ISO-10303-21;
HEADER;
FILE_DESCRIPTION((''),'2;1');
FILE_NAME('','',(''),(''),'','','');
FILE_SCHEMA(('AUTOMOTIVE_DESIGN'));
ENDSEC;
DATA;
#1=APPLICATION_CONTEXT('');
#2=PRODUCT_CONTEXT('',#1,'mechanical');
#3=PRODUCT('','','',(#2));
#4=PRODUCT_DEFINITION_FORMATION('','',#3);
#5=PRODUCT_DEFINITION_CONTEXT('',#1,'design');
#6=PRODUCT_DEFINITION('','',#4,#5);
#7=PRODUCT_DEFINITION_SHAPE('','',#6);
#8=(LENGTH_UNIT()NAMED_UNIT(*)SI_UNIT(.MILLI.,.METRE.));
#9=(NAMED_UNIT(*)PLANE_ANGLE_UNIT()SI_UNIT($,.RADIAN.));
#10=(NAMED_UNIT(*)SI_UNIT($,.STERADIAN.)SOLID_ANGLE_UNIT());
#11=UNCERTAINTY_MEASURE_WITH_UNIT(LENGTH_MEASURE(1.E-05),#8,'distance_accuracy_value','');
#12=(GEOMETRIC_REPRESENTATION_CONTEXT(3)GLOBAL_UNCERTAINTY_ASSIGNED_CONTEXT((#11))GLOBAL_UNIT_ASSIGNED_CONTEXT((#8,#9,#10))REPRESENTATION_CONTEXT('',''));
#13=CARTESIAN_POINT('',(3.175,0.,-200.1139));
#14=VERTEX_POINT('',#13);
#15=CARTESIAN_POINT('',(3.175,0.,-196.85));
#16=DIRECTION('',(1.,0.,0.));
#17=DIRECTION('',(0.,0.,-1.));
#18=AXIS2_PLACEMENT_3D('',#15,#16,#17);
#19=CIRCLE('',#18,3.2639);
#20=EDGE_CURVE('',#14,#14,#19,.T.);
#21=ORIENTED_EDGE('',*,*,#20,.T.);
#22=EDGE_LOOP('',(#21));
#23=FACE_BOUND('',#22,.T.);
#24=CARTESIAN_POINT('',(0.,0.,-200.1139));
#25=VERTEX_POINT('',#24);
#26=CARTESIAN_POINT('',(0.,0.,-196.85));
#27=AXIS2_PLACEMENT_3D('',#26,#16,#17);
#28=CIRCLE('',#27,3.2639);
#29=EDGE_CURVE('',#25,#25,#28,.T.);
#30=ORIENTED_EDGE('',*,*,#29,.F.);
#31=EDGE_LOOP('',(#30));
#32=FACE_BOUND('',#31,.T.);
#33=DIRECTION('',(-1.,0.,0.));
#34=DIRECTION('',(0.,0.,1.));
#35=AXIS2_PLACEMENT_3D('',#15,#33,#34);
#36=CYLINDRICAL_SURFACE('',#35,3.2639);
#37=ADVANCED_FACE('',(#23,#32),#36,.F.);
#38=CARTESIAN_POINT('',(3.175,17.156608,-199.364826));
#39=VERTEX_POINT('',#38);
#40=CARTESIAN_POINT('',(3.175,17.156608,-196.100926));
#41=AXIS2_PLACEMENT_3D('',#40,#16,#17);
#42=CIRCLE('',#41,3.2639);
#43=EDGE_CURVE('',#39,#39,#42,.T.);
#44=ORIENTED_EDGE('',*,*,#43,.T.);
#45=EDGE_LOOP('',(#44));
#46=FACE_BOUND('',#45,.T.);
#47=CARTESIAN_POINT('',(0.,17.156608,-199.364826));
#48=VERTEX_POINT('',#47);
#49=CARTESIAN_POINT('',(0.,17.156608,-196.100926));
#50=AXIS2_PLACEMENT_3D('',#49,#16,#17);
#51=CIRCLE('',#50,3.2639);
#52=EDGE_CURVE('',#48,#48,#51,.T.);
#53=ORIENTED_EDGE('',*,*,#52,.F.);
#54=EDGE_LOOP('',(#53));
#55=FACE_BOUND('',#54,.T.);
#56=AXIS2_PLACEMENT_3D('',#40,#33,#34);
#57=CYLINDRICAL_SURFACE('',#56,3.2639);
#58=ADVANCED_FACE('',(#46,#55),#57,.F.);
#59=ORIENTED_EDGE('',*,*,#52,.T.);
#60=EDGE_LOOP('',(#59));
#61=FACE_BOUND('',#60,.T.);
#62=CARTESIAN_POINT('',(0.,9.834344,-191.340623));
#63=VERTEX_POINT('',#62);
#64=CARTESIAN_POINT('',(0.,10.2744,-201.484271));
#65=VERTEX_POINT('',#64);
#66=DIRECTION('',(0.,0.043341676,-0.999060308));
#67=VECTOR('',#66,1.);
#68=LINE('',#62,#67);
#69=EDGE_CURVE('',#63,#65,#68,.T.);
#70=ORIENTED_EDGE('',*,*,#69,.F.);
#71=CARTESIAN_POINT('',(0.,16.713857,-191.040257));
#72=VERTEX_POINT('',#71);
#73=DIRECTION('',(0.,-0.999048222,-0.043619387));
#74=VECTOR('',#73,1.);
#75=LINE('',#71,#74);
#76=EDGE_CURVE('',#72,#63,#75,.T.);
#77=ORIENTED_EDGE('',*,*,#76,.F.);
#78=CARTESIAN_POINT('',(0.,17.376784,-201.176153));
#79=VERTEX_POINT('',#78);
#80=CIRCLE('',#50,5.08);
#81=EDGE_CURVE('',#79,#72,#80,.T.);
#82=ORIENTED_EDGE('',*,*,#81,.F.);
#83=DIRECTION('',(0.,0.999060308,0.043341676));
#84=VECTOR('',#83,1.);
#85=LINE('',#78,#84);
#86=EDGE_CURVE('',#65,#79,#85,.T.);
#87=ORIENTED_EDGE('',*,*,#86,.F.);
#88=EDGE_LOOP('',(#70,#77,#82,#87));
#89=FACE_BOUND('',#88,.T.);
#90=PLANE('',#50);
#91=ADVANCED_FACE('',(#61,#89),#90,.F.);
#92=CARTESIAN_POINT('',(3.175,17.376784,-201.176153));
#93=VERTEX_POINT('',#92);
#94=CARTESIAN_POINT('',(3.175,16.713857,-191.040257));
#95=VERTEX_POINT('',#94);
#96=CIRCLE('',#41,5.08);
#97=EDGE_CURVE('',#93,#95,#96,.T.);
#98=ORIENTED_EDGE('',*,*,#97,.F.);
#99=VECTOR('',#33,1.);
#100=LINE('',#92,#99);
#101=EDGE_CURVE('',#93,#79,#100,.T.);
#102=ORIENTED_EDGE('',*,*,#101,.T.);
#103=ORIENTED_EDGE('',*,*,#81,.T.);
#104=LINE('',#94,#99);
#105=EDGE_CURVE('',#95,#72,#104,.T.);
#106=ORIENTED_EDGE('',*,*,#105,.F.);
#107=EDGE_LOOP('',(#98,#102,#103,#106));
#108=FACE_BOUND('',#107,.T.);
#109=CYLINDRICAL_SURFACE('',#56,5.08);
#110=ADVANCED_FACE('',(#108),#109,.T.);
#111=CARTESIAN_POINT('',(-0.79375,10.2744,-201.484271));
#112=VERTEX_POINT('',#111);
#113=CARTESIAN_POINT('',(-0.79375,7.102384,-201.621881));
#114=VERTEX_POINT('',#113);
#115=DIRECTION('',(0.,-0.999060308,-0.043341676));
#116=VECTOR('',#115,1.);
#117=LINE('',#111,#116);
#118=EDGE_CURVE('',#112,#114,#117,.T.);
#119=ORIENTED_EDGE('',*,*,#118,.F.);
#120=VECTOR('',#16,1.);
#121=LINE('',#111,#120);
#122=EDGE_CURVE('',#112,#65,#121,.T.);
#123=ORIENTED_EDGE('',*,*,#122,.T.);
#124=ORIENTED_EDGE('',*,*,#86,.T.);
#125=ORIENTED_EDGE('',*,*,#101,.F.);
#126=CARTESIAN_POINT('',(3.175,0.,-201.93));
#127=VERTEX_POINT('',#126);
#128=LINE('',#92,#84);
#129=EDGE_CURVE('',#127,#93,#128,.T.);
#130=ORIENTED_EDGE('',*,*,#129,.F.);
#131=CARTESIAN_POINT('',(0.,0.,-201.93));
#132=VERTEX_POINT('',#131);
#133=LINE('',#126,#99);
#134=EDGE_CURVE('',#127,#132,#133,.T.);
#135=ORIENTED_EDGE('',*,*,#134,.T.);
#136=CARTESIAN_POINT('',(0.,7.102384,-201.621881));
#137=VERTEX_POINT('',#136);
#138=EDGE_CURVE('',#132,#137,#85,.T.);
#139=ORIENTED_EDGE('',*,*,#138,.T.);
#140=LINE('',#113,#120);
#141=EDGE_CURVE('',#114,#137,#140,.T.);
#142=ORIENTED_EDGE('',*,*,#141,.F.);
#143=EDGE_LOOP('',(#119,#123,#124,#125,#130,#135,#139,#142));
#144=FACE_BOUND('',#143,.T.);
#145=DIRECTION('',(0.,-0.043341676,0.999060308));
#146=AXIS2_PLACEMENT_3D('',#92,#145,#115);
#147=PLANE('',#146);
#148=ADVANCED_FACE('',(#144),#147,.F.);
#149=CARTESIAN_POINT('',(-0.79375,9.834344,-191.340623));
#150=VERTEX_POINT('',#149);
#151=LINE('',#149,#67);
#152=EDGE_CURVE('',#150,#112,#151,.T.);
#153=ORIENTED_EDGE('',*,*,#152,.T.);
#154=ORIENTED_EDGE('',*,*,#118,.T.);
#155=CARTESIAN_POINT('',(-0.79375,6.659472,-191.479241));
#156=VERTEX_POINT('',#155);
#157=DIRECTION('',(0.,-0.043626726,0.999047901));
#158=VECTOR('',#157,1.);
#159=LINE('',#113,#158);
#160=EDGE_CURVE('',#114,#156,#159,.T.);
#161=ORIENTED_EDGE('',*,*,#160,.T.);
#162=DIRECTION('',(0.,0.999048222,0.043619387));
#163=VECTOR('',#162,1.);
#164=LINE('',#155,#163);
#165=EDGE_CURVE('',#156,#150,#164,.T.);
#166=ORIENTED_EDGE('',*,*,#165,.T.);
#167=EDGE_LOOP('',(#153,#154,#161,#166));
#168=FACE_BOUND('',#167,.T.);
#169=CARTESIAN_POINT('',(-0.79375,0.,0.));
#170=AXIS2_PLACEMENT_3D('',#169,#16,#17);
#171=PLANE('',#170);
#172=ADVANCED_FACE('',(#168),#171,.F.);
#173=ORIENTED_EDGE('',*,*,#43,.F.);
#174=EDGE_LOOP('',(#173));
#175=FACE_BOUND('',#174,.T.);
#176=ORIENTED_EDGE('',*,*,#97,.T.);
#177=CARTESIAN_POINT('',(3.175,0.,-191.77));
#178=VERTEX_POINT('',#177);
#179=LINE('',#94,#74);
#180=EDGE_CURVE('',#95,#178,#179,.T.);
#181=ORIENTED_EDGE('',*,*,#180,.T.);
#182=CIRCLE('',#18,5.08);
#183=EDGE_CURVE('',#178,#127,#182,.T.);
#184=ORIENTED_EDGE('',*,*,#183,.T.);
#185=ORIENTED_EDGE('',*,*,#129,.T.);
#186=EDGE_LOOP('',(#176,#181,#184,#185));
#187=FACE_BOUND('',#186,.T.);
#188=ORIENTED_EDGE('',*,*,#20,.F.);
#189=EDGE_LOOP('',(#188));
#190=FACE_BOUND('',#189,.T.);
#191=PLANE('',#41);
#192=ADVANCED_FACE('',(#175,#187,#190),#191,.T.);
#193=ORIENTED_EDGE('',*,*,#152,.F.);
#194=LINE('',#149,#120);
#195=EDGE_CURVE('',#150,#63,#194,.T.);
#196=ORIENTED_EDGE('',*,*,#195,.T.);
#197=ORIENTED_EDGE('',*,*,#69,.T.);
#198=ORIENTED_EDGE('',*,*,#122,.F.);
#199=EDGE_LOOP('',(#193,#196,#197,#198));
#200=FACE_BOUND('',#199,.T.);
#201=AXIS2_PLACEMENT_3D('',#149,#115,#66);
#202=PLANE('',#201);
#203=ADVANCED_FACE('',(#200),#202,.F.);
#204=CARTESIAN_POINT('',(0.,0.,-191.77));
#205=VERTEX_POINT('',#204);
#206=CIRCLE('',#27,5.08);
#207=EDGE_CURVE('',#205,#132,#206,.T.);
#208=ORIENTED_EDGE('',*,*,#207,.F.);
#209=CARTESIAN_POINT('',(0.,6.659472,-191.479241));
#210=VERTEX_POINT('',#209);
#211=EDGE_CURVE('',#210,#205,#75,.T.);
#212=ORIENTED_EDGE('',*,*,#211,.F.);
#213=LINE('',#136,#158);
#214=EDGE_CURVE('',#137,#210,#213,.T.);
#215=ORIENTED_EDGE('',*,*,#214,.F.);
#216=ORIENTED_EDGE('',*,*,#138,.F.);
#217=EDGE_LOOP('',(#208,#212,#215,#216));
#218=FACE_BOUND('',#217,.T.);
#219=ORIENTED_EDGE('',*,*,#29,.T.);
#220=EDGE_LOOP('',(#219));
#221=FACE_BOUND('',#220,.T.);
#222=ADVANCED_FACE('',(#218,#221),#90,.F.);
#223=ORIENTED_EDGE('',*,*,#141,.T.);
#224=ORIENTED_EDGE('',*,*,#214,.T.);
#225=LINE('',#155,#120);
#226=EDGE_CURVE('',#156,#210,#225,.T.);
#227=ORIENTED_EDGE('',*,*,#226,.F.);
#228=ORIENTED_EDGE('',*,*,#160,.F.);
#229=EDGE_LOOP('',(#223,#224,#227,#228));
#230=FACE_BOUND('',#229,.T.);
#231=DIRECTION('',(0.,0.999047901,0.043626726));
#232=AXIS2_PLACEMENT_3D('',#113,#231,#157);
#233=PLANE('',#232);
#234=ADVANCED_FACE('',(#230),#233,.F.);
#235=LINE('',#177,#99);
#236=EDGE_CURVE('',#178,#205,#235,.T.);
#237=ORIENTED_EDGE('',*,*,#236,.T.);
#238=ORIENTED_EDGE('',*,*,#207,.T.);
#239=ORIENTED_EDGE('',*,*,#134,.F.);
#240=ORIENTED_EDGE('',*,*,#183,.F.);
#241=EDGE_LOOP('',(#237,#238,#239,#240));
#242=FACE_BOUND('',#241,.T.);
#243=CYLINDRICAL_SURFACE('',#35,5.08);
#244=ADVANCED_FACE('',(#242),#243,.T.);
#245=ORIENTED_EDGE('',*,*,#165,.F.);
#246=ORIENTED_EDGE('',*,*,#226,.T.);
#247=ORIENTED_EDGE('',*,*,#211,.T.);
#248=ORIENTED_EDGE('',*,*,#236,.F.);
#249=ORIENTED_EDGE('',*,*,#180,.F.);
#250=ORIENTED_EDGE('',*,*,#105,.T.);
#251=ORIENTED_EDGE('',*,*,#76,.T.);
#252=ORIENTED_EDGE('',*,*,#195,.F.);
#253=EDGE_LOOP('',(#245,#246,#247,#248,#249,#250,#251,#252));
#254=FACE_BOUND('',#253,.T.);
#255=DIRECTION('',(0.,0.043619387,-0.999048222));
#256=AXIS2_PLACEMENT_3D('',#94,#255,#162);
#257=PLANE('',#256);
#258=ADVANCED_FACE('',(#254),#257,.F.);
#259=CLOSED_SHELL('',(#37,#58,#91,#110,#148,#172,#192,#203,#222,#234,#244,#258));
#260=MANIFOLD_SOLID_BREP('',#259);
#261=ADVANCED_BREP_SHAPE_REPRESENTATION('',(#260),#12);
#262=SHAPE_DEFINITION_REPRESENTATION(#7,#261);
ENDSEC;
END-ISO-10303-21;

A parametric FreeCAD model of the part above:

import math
import FreeCAD as App
import Part
import Sketcher
from FreeCAD import Vector
Q = App.Units.Quantity

doc = App.newDocument("Part")
params = doc.addObject("Spreadsheet::Sheet", "Params")
for row, (alias, value) in enumerate([
    ("sketch1_radius", "0.2 in"),
    ("sketch1_diameter", "0.257 in"),
    ("pad1_length", "0.125 in"),
    ("sketch2_length", "0.0625 in"),
    ("pad2_length", "0.03125 in"),
], start=1):
    params.set(f"A{row}", alias)
    params.set(f"B{row}", "=" + value)
    params.setAlias(f"B{row}", alias)

body = doc.addObject("PartDesign::Body", "Body")

sketch1 = body.newObject("Sketcher::SketchObject", "Sketch")
sketch1.AttachmentSupport = (doc.getObject("YZ_Plane"), [""])
sketch1.MapMode = "FlatFace"
sketch1.addGeometry(Part.LineSegment(Vector(16.7, -191, 0), Vector(0, -191.8, 0)), False)
sketch1.addGeometry(Part.ArcOfCircle(Part.Circle(Vector(0, -196.8, 0), Vector(0, 0, 1), 5.1), math.radians(90), math.radians(270)), False)
sketch1.addGeometry(Part.LineSegment(Vector(0, -201.9, 0), Vector(17.4, -201.2, 0)), False)
sketch1.addGeometry(Part.ArcOfCircle(Part.Circle(Vector(17.2, -196.1, 0), Vector(0, 0, 1), 5.1), math.radians(-88), math.radians(95)), False)
sketch1.addGeometry(Part.Circle(Vector(0, -196.8, 0), Vector(0, 0, 1), 3.3), False)
sketch1.addGeometry(Part.Circle(Vector(17.2, -196.1, 0), Vector(0, 0, 1), 3.3), False)
sketch1.addConstraint(Sketcher.Constraint("Coincident", 0, 2, 1, 1))
sketch1.addConstraint(Sketcher.Constraint("Coincident", 1, 2, 2, 1))
sketch1.addConstraint(Sketcher.Constraint("Tangent", 2, 2, 3, 1))
sketch1.addConstraint(Sketcher.Constraint("Coincident", 3, 2, 0, 1))
sketch1.addConstraint(Sketcher.Constraint("Coincident", 4, 3, 1, 3))
sketch1.addConstraint(Sketcher.Constraint("Coincident", 5, 3, 3, 3))
sketch1.addConstraint(Sketcher.Constraint("Equal", 1, 3))
sketch1.addConstraint(Sketcher.Constraint("Equal", 4, 5))
sketch1.addConstraint(Sketcher.Constraint("PointOnObject", 1, 3, -2))
sketch1.addConstraint(Sketcher.Constraint("PointOnObject", 0, 2, -2))
sketch1.addConstraint(Sketcher.Constraint("PointOnObject", 1, 2, -2))
sketch1.addConstraint(Sketcher.Constraint("Radius", 1, Q("0.2 in")))
sketch1.addConstraint(Sketcher.Constraint("Diameter", 4, Q("0.257 in")))
sketch1.addConstraint(Sketcher.Constraint("Angle", 0, Q("-177.5 deg")))
sketch1.addConstraint(Sketcher.Constraint("DistanceY", 1, 3, -1, 1, Q("7.75 in")))
sketch1.addConstraint(Sketcher.Constraint("Distance", 0, Q("16.72978 mm")))
sketch1.addConstraint(Sketcher.Constraint("DistanceX", 3, 2, 3, 3, Q("0.442751 mm")))
sketch1.setExpression("Constraints[11]", "Params.sketch1_radius")
sketch1.setExpression("Constraints[12]", "Params.sketch1_diameter")
pad1 = body.newObject("PartDesign::Pad", "Pad")
pad1.Profile = sketch1
pad1.setExpression("Length", "Params.pad1_length")

sketch2 = body.newObject("Sketcher::SketchObject", "Sketch001")
sketch2.AttachmentSupport = (doc.getObject("YZ_Plane"), [""])
sketch2.MapMode = "FlatFace"
sketch2.addGeometry(Part.LineSegment(Vector(8.7, -201.6, 0), Vector(7.1, -201.6, 0)), False)
sketch2.addGeometry(Part.LineSegment(Vector(7.1, -201.6, 0), Vector(6.7, -191.5, 0)), False)
sketch2.addGeometry(Part.LineSegment(Vector(6.7, -191.5, 0), Vector(9.8, -191.3, 0)), False)
sketch2.addGeometry(Part.LineSegment(Vector(9.8, -191.3, 0), Vector(10.3, -201.5, 0)), False)
sketch2.addGeometry(Part.LineSegment(Vector(10.3, -201.5, 0), Vector(8.7, -201.6, 0)), False)
sketch2.addConstraint(Sketcher.Constraint("Coincident", 0, 2, 1, 1))
sketch2.addConstraint(Sketcher.Constraint("Coincident", 1, 2, 2, 1))
sketch2.addConstraint(Sketcher.Constraint("Coincident", 2, 2, 3, 1))
sketch2.addConstraint(Sketcher.Constraint("Coincident", 3, 2, 4, 1))
sketch2.addConstraint(Sketcher.Constraint("Coincident", 4, 2, 0, 1))
sketch2.addConstraint(Sketcher.Constraint("Perpendicular", 0, 3))
sketch2.addConstraint(Sketcher.Constraint("Perpendicular", 3, 4))
sketch2.addConstraint(Sketcher.Constraint("Equal", 0, 4))
sketch2.addConstraint(Sketcher.Constraint("Angle", 2, Q("2.5 deg")))
sketch2.addConstraint(Sketcher.Constraint("Distance", 0, Q("0.0625 in")))
sketch2.addConstraint(Sketcher.Constraint("DistanceX", -1, 1, 3, 2, Q("10.2744 mm")))
sketch2.addConstraint(Sketcher.Constraint("Distance", 3, Q("10.153189 mm")))
sketch2.addConstraint(Sketcher.Constraint("DistanceY", 0, 2, -1, 1, Q("201.621881 mm")))
sketch2.addConstraint(Sketcher.Constraint("DistanceX", -1, 1, 1, 2, Q("6.659472 mm")))
sketch2.addConstraint(Sketcher.Constraint("DistanceY", 1, 2, -1, 1, Q("191.479241 mm")))
sketch2.setExpression("Constraints[9]", "Params.sketch2_length")
pad2 = body.newObject("PartDesign::Pad", "Pad001")
pad2.Profile = sketch2
pad2.setExpression("Length", "Params.pad2_length")
pad2.Reversed = True

doc.recompute()
